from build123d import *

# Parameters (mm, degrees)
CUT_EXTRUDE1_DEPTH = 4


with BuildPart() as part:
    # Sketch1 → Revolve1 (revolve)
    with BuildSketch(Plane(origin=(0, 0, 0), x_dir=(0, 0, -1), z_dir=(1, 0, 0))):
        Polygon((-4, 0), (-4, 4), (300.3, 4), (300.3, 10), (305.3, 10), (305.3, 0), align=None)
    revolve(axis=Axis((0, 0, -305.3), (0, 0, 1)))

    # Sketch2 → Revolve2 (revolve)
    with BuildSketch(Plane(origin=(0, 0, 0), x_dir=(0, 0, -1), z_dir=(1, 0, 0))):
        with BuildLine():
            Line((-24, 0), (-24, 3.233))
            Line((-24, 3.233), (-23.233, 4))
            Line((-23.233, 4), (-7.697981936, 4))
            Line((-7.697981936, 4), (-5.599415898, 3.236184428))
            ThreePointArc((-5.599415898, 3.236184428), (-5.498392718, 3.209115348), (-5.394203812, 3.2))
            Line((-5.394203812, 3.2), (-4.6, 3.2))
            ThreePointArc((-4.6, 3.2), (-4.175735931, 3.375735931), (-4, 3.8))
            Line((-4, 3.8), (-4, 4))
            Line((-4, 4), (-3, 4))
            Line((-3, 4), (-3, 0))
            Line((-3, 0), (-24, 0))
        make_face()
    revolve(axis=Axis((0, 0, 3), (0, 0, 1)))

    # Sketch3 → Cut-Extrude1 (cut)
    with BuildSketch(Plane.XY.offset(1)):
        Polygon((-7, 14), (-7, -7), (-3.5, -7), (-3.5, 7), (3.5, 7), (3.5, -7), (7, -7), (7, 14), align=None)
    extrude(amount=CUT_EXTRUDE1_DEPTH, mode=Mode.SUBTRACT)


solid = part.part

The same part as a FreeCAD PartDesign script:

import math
import FreeCAD as App
import Part
import Sketcher

V = App.Vector
Q = App.Units.Quantity


def add_polygon(sketch, points):
    """Adds a closed chain of lines whose ends are joined by coincident constraints."""
    first, n = sketch.GeometryCount, len(points)
    for a, b in zip(points, points[1:] + points[:1]):
        sketch.addGeometry(Part.LineSegment(App.Vector(*a, 0), App.Vector(*b, 0)), False)
    for i in range(n):
        sketch.addConstraint(Sketcher.Constraint("Coincident", first + i, 2, first + (i + 1) % n, 1))

doc = App.newDocument("Part")
body = doc.addObject("PartDesign::Body", "Body")

sketch1 = body.newObject("Sketcher::SketchObject", "Sketch")
sketch1.AttachmentSupport = (doc.getObject("YZ_Plane"), [""])
sketch1.MapMode = "FlatFace"
add_polygon(sketch1, [(4, 4), (0, 4), (0, -305.3), (10, -305.3), (10, -300.3), (4, -300.3)])
sketch1.addConstraint(Sketcher.Constraint("Horizontal", 0))
sketch1.addConstraint(Sketcher.Constraint("Vertical", 1))
sketch1.addConstraint(Sketcher.Constraint("Horizontal", 2))
sketch1.addConstraint(Sketcher.Constraint("Vertical", 3))
sketch1.addConstraint(Sketcher.Constraint("Horizontal", 4))
sketch1.addConstraint(Sketcher.Constraint("Vertical", 5))
sketch1.addConstraint(Sketcher.Constraint("PointOnObject", 0, 2, -2))
sketch1.addConstraint(Sketcher.Constraint("DistanceX", 0, 2, 0, 1, Q("4 mm")))
sketch1.addConstraint(Sketcher.Constraint("DistanceX", 2, 1, 2, 2, Q("10 mm")))
sketch1.addConstraint(Sketcher.Constraint("DistanceY", 3, 1, 3, 2, Q("5 mm")))
sketch1.addConstraint(Sketcher.Constraint("DistanceY", 1, 2, 1, 1, Q("309.3 mm")))
sketch1.addConstraint(Sketcher.Constraint("DistanceY", -1, 1, 0, 2, Q("4 mm")))
revolution = body.newObject("PartDesign::Revolution", "Revolution")
revolution.Profile = sketch1
revolution.ReferenceAxis = (sketch1, ["V_Axis"])
revolution.Angle = 360

sketch2 = body.newObject("Sketcher::SketchObject", "Sketch001")
sketch2.AttachmentSupport = (doc.getObject("YZ_Plane"), [""])
sketch2.MapMode = "FlatFace"
sketch2.addGeometry(Part.LineSegment(V(3.23, 24, 0), V(0, 24, 0)), False)
sketch2.addGeometry(Part.LineSegment(V(0, 24, 0), V(0, 3, 0)), False)
sketch2.addGeometry(Part.LineSegment(V(0, 3, 0), V(4, 3, 0)), False)
sketch2.addGeometry(Part.LineSegment(V(4, 3, 0), V(4, 4, 0)), False)
sketch2.addGeometry(Part.LineSegment(V(4, 4, 0), V(3.8, 4, 0)), False)
sketch2.addGeometry(Part.ArcOfCircle(Part.Circle(V(3.8, 4.6, 0), V(0, 0, 1), 0.6), math.radians(180), math.radians(270)), False)
sketch2.addGeometry(Part.LineSegment(V(3.2, 4.6, 0), V(3.2, 5.39, 0)), False)
sketch2.addGeometry(Part.ArcOfCircle(Part.Circle(V(3.8, 5.39, 0), V(0, 0, 1), 0.6), math.radians(160), math.radians(180)), False)
sketch2.addGeometry(Part.LineSegment(V(3.24, 5.6, 0), V(4, 7.7, 0)), False)
sketch2.addGeometry(Part.LineSegment(V(4, 7.7, 0), V(4, 23.23, 0)), False)
sketch2.addGeometry(Part.LineSegment(V(4, 23.23, 0), V(3.23, 24, 0)), False)
sketch2.addConstraint(Sketcher.Constraint("Coincident", 0, 2, 1, 1))
sketch2.addConstraint(Sketcher.Constraint("Coincident", 1, 2, 2, 1))
sketch2.addConstraint(Sketcher.Constraint("Coincident", 2, 2, 3, 1))
sketch2.addConstraint(Sketcher.Constraint("Coincident", 3, 2, 4, 1))
sketch2.addConstraint(Sketcher.Constraint("Tangent", 4, 2, 5, 2))
sketch2.addConstraint(Sketcher.Constraint("Tangent", 5, 1, 6, 1))
sketch2.addConstraint(Sketcher.Constraint("Tangent", 6, 2, 7, 2))
sketch2.addConstraint(Sketcher.Constraint("Tangent", 7, 1, 8, 1))
sketch2.addConstraint(Sketcher.Constraint("Coincident", 8, 2, 9, 1))
sketch2.addConstraint(Sketcher.Constraint("Coincident", 9, 2, 10, 1))
sketch2.addConstraint(Sketcher.Constraint("Coincident", 10, 2, 0, 1))
sketch2.addConstraint(Sketcher.Constraint("Horizontal", 0))
sketch2.addConstraint(Sketcher.Constraint("Vertical", 1))
sketch2.addConstraint(Sketcher.Constraint("Horizontal", 2))
sketch2.addConstraint(Sketcher.Constraint("Vertical", 3))
sketch2.addConstraint(Sketcher.Constraint("Horizontal", 4))
sketch2.addConstraint(Sketcher.Constraint("Vertical", 6))
sketch2.addConstraint(Sketcher.Constraint("Vertical", 9))
sketch2.addConstraint(Sketcher.Constraint("Equal", 5, 7))
sketch2.addConstraint(Sketcher.Constraint("PointOnObject", 0, 2, -2))
sketch2.addConstraint(Sketcher.Constraint("Vertical", 3, 2, 8, 2))
sketch2.addConstraint(Sketcher.Constraint("Radius", 5, Q("0.6 mm")))
sketch2.addConstraint(Sketcher.Constraint("DistanceX", 2, 1, 2, 2, Q("4 mm")))
sketch2.addConstraint(Sketcher.Constraint("DistanceY", 1, 2, 1, 1, Q("21 mm")))
sketch2.addConstraint(Sketcher.Constraint("DistanceY", 3, 1, 3, 2, Q("1 mm")))
sketch2.addConstraint(Sketcher.Constraint("Angle", 8, Q("70 deg")))
sketch2.addConstraint(Sketcher.Constraint("Angle", 10, Q("135 deg")))
sketch2.addConstraint(Sketcher.Constraint("DistanceX", 4, 2, 4, 1, Q("0.2 mm")))
sketch2.addConstraint(Sketcher.Constraint("DistanceY", -1, 1, 0, 2, Q("24 mm")))
sketch2.addConstraint(Sketcher.Constraint("DistanceX", 0, 2, 0, 1, Q("3.233 mm")))
sketch2.addConstraint(Sketcher.Constraint("DistanceY", 9, 1, 9, 2, Q("15.535018 mm")))
revolution2 = body.newObject("PartDesign::Revolution", "Revolution001")
revolution2.Profile = sketch2
revolution2.ReferenceAxis = (sketch2, ["V_Axis"])
revolution2.Angle = 360

sketch3 = body.newObject("Sketcher::SketchObject", "Sketch002")
sketch3.AttachmentSupport = (doc.getObject("XY_Plane"), [""])
sketch3.MapMode = "FlatFace"
sketch3.AttachmentOffset = App.Placement(V(0, 0, 1), App.Rotation())
add_polygon(sketch3, [(-7, 14), (-7, -7), (-3.5, -7), (-3.5, 7), (3.5, 7), (3.5, -7), (7, -7), (7, 14)])
sketch3.addConstraint(Sketcher.Constraint("Vertical", 0))
sketch3.addConstraint(Sketcher.Constraint("Horizontal", 1))
sketch3.addConstraint(Sketcher.Constraint("Vertical", 2))
sketch3.addConstraint(Sketcher.Constraint("Horizontal", 3))
sketch3.addConstraint(Sketcher.Constraint("Vertical", 4))
sketch3.addConstraint(Sketcher.Constraint("Horizontal", 5))
sketch3.addConstraint(Sketcher.Constraint("Vertical", 6))
sketch3.addConstraint(Sketcher.Constraint("Horizontal", 7))
sketch3.addConstraint(Sketcher.Constraint("Symmetric", 1, 2, 3, 2, -1, 1))
sketch3.addConstraint(Sketcher.Constraint("Symmetric", 0, 2, 5, 2, -2))
sketch3.addConstraint(Sketcher.Constraint("Equal", 7, 2))
sketch3.addConstraint(Sketcher.Constraint("DistanceX", 3, 1, 3, 2, Q("7 mm")))
sketch3.addConstraint(Sketcher.Constraint("DistanceX", 7, 2, 7, 1, Q("14 mm")))
sketch3.addConstraint(Sketcher.Constraint("DistanceY", 0, 2, 0, 1, Q("21 mm")))
pocket1 = body.newObject("PartDesign::Pocket", "Pocket")
pocket1.Profile = sketch3
pocket1.Length = 4
pocket1.Reversed = True

doc.recompute()
